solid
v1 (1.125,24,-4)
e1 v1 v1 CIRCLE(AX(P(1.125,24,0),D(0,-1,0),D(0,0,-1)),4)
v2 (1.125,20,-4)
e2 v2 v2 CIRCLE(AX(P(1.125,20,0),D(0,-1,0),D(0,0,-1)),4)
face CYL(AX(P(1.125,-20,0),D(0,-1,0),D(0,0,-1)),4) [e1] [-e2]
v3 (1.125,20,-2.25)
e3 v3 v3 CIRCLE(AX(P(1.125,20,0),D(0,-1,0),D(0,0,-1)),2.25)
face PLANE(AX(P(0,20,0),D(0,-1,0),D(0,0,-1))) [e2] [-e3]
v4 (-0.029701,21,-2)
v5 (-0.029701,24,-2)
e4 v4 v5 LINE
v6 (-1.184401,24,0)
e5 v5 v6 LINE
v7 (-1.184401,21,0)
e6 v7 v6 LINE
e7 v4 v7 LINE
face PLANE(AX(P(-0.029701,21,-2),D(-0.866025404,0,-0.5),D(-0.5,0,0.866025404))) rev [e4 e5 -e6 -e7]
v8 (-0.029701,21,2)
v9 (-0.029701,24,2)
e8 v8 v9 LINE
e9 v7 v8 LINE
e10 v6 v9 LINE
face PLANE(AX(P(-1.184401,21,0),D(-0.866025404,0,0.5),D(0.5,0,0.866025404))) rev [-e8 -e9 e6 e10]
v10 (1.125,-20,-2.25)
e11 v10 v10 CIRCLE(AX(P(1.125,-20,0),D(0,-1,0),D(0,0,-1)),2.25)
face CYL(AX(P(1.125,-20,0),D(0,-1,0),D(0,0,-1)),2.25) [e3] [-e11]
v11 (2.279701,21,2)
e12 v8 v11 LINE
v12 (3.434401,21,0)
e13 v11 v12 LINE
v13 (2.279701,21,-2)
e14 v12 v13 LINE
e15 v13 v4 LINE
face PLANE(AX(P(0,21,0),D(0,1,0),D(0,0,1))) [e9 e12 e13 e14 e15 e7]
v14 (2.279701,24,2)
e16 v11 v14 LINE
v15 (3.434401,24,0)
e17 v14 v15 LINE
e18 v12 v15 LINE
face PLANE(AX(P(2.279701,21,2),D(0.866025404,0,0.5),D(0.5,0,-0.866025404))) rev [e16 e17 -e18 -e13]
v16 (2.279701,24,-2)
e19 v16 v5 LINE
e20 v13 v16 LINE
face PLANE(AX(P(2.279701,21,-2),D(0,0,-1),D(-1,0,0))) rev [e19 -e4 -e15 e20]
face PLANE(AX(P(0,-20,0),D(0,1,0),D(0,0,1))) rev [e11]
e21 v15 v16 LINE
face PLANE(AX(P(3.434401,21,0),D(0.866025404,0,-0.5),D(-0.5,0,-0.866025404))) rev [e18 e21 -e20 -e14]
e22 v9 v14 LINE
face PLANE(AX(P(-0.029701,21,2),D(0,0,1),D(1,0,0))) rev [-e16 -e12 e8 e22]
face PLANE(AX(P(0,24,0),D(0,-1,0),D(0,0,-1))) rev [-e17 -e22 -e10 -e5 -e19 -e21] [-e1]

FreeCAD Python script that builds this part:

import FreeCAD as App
import Part
import Sketcher

V = App.Vector
Q = App.Units.Quantity

doc = App.newDocument("Part")
params = doc.addObject("Spreadsheet::Sheet", "Params")
for row, (alias, value) in enumerate([
    ("sketch1_width", "4 mm"),
    ("sketch1_height", "40 mm"),
    ("sketch1_width2", "2.25 mm"),
    ("revolution_angle", "360 deg"),
    ("pocket1_length", "3 mm"),
], start=1):
    params.set(f"A{row}", alias)
    params.set(f"B{row}", "=" + value)
    params.setAlias(f"B{row}", alias)

body = doc.addObject("PartDesign::Body", "Body")

# Sketch on XY plane
sketch1 = body.newObject("Sketcher::SketchObject", "Sketch")
sketch1.AttachmentSupport = (doc.getObject("XY_Plane"), [""])
sketch1.MapMode = "FlatFace"
sketch1.addGeometry([
    Part.LineSegment(V(-1.1, 20, 0), V(-1.1, -20, 0)),  # 0
    Part.LineSegment(V(-1.1, -20, 0), V(1.1, -20, 0)),  # 1
    Part.LineSegment(V(1.1, -20, 0), V(1.1, 24, 0)),  # 2
    Part.LineSegment(V(1.1, 24, 0), V(-2.9, 24, 0)),  # 3
    Part.LineSegment(V(-2.9, 24, 0), V(-2.9, 20, 0)),  # 4
    Part.LineSegment(V(-2.9, 20, 0), V(-1.1, 20, 0)),  # 5
], False)
sketch1.addGeometry(Part.LineSegment(V(1.1, -20, 0), V(1.1, 24, 0)), True)  # axis
sketch1.addConstraint([
    Sketcher.Constraint("Coincident", 0, 2, 1, 1),
    Sketcher.Constraint("Coincident", 1, 2, 2, 1),
    Sketcher.Constraint("Coincident", 2, 2, 3, 1),
    Sketcher.Constraint("Coincident", 3, 2, 4, 1),
    Sketcher.Constraint("Coincident", 4, 2, 5, 1),
    Sketcher.Constraint("Coincident", 5, 2, 0, 1),
    Sketcher.Constraint("Vertical", 0),
    Sketcher.Constraint("Horizontal", 1),
    Sketcher.Constraint("Vertical", 2),
    Sketcher.Constraint("Horizontal", 3),
    Sketcher.Constraint("Vertical", 4),
    Sketcher.Constraint("Horizontal", 5),
    Sketcher.Constraint("Vertical", 6),
    Sketcher.Constraint("Coincident", 6, 1, 1, 2),
    Sketcher.Constraint("Symmetric", 1, 2, 5, 2, -1, 1),
    Sketcher.Constraint("Horizontal", 3, 2, 6, 2),
    Sketcher.Constraint("Equal", 3, 4),
    Sketcher.Constraint("DistanceX", 3, 2, 3, 1, Q("4 mm")),
    Sketcher.Constraint("DistanceY", 0, 2, 0, 1, Q("40 mm")),
    Sketcher.Constraint("DistanceX", 1, 1, 1, 2, Q("2.25 mm")),
])
sketch1.setExpression("Constraints[17]", "Params.sketch1_width")
sketch1.setExpression("Constraints[18]", "Params.sketch1_height")
sketch1.setExpression("Constraints[19]", "Params.sketch1_width2")
revolution = body.newObject("PartDesign::Revolution", "Revolution")
revolution.Profile = sketch1
revolution.ReferenceAxis = (sketch1, ["Axis0"])
revolution.setExpression("Angle", "Params.revolution_angle")

# Sketch on XZ plane
sketch2 = body.newObject("Sketcher::SketchObject", "Sketch001")
sketch2.AttachmentSupport = (doc.getObject("XZ_Plane"), [""])
sketch2.MapMode = "FlatFace"
sketch2.AttachmentOffset = App.Placement(V(0, 0, -24), App.Rotation())
sketch2.addGeometry([
    Part.LineSegment(V(3.4, 0, 0), V(2.3, -2, 0)),  # 0
    Part.LineSegment(V(2.3, -2, 0), V(0, -2, 0)),  # 1
    Part.LineSegment(V(0, -2, 0), V(-1.2, 0, 0)),  # 2
    Part.LineSegment(V(-1.2, 0, 0), V(0, 2, 0)),  # 3
    Part.LineSegment(V(0, 2, 0), V(2.3, 2, 0)),  # 4
    Part.LineSegment(V(2.3, 2, 0), V(3.4, 0, 0)),  # 5
], False)
sketch2.addConstraint([
    Sketcher.Constraint("Coincident", 0, 2, 1, 1),
    Sketcher.Constraint("Coincident", 1, 2, 2, 1),
    Sketcher.Constraint("Coincident", 2, 2, 3, 1),
    Sketcher.Constraint("Coincident", 3, 2, 4, 1),
    Sketcher.Constraint("Coincident", 4, 2, 5, 1),
    Sketcher.Constraint("Coincident", 5, 2, 0, 1),
    Sketcher.Constraint("Horizontal", 1),
    Sketcher.Constraint("Horizontal", 4),
    Sketcher.Constraint("Symmetric", 1, 2, 3, 2, -1),
    Sketcher.Constraint("PointOnObject", 2, 2, -1),
    Sketcher.Constraint("PointOnObject", 5, 2, -1),
    Sketcher.Constraint("Parallel", 0, 3),
    Sketcher.Constraint("Parallel", 2, 5),
    Sketcher.Constraint("Angle", 0, Q("-120 deg")),
    Sketcher.Constraint("DistanceY", 0, 2, -1, 1, Q("2 mm")),
    Sketcher.Constraint("DistanceX", 1, 2, 1, 1, Q("2.309401 mm")),
    Sketcher.Constraint("DistanceX", -1, 1, 0, 2, Q("2.279701 mm")),
])
pocket1 = body.newObject("PartDesign::Pocket", "Pocket")
pocket1.Profile = sketch2
pocket1.setExpression("Length", "Params.pocket1_length")
pocket1.Reversed = True

doc.recompute()
